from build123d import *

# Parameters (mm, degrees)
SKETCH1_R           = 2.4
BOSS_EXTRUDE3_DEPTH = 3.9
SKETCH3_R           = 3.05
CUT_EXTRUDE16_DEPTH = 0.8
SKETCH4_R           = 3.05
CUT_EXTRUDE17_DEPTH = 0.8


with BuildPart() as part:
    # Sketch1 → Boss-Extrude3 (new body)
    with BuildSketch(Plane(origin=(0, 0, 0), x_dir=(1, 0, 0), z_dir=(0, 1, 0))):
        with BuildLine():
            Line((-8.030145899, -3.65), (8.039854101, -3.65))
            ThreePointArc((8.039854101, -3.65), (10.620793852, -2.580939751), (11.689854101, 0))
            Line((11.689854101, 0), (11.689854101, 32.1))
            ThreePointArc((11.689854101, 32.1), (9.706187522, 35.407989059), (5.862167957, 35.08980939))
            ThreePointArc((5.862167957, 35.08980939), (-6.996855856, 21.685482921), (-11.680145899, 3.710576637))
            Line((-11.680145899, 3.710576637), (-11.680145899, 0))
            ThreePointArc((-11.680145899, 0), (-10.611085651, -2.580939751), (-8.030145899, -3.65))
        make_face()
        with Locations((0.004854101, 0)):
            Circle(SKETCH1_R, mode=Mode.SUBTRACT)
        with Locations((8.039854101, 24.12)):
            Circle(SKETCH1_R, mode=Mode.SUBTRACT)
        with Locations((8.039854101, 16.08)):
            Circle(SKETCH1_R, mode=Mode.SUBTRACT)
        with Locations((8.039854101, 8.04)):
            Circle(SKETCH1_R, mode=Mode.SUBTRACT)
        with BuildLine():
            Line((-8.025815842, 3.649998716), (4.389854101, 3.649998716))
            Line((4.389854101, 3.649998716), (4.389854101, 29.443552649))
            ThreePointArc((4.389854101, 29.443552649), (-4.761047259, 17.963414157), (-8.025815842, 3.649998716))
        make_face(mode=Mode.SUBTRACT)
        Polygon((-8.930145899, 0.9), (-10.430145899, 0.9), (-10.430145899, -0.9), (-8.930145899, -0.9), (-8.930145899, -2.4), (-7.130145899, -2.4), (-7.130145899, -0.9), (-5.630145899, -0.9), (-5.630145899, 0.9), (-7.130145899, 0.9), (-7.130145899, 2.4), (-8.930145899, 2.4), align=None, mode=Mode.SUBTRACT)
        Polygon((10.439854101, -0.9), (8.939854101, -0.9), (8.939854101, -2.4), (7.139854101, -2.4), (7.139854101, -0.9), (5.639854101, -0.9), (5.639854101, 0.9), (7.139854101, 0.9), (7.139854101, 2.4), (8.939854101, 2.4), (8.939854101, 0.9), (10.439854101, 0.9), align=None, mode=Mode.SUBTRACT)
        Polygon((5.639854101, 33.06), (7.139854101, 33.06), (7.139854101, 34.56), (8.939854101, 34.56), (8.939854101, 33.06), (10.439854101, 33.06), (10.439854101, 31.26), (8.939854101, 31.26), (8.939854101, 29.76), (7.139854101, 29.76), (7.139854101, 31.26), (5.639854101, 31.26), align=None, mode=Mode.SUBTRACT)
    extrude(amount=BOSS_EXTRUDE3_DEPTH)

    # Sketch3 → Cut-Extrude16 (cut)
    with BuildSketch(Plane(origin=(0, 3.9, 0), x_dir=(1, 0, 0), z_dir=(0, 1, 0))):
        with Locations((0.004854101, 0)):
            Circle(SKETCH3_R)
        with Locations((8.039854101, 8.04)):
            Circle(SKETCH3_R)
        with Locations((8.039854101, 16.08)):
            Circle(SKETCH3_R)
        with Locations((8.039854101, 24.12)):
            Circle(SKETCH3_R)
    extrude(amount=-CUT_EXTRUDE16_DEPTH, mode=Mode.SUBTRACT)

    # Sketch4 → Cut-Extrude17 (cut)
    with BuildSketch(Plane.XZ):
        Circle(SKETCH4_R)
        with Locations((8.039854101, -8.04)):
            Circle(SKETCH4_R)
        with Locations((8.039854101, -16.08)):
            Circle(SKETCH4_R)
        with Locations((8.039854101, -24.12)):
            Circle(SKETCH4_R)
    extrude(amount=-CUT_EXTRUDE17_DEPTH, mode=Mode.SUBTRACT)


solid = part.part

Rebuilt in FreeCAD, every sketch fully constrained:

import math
import FreeCAD as App
import Part
import Sketcher
Q = App.Units.Quantity

doc = App.newDocument("Part")
params = doc.addObject("Spreadsheet::Sheet", "Params")
for row, (alias, value) in enumerate([
    ("sketch1_diameter", "4.8 mm"),
    ("sketch1_radius", "3.65 mm"),
    ("sketch1_width", "1.5 mm"),
    ("sketch1_width2", "1.8 mm"),
    ("sketch1_height", "32.1 mm"),
    ("pad1_length", "3.9 mm"),
    ("sketch2_diameter", "6.1 mm"),
    ("pocket1_length", "0.8 mm"),
    ("sketch3_diameter", "6.1 mm"),
    ("pocket2_length", "0.8 mm"),
], start=1):
    params.set(f"A{row}", alias)
    params.set(f"B{row}", "=" + value)
    params.setAlias(f"B{row}", alias)

body = doc.addObject("PartDesign::Body", "Body")

# Sketch on XZ plane
sketch1 = body.newObject("Sketcher::SketchObject", "Sketch")
sketch1.AttachmentSupport = (doc.getObject("XZ_Plane"), [""])
sketch1.MapMode = "FlatFace"
sketch1.addGeometry(Part.LineSegment(App.Vector(-8, 3.6, 0), App.Vector(8, 3.6, 0)), False)
sketch1.addGeometry(Part.ArcOfCircle(Part.Circle(App.Vector(8, 0, 0), App.Vector(0, 0, 1), 3.7), math.radians(0), math.radians(90)), False)
sketch1.addGeometry(Part.LineSegment(App.Vector(11.7, 0, 0), App.Vector(11.7, -32.1, 0)), False)
sketch1.addGeometry(Part.ArcOfCircle(Part.Circle(App.Vector(8, -32.2, 0), App.Vector(0, 0, 1), 3.7), math.radians(-127), math.radians(1)), False)
sketch1.addGeometry(Part.ArcOfCircle(Part.Circle(App.Vector(25.2, -3.7, 0), App.Vector(0, 0, 1), 36.8), math.radians(180), math.radians(238)), False)
sketch1.addGeometry(Part.LineSegment(App.Vector(-11.7, -3.7, 0), App.Vector(-11.7, 0, 0)), False)
sketch1.addGeometry(Part.ArcOfCircle(Part.Circle(App.Vector(-8, 0, 0), App.Vector(0, 0, 1), 3.6), math.radians(90), math.radians(180)), False)
sketch1.addGeometry(Part.LineSegment(App.Vector(-10.4, -0.9, 0), App.Vector(-8.9, -0.9, 0)), False)
sketch1.addGeometry(Part.LineSegment(App.Vector(-8.9, -0.9, 0), App.Vector(-8.9, -2.4, 0)), False)
sketch1.addGeometry(Part.LineSegment(App.Vector(-8.9, -2.4, 0), App.Vector(-7.1, -2.4, 0)), False)
sketch1.addGeometry(Part.LineSegment(App.Vector(-7.1, -2.4, 0), App.Vector(-7.1, -0.9, 0)), False)
sketch1.addGeometry(Part.LineSegment(App.Vector(-7.1, -0.9, 0), App.Vector(-5.6, -0.9, 0)), False)
sketch1.addGeometry(Part.LineSegment(App.Vector(-5.6, -0.9, 0), App.Vector(-5.6, 0.9, 0)), False)
sketch1.addGeometry(Part.LineSegment(App.Vector(-5.6, 0.9, 0), App.Vector(-7.1, 0.9, 0)), False)
sketch1.addGeometry(Part.LineSegment(App.Vector(-7.1, 0.9, 0), App.Vector(-7.1, 2.4, 0)), False)
sketch1.addGeometry(Part.LineSegment(App.Vector(-7.1, 2.4, 0), App.Vector(-8.9, 2.4, 0)), False)
sketch1.addGeometry(Part.LineSegment(App.Vector(-8.9, 2.4, 0), App.Vector(-8.9, 0.9, 0)), False)
sketch1.addGeometry(Part.LineSegment(App.Vector(-8.9, 0.9, 0), App.Vector(-10.4, 0.9, 0)), False)
sketch1.addGeometry(Part.LineSegment(App.Vector(-10.4, 0.9, 0), App.Vector(-10.4, -0.9, 0)), False)
sketch1.addGeometry(Part.Circle(App.Vector(0, 0, 0), App.Vector(0, 0, 1), 2.4), False)
sketch1.addGeometry(Part.LineSegment(App.Vector(10.4, -0.9, 0), App.Vector(10.4, 0.9, 0)), False)
sketch1.addGeometry(Part.LineSegment(App.Vector(10.4, 0.9, 0), App.Vector(8.9, 0.9, 0)), False)
sketch1.addGeometry(Part.LineSegment(App.Vector(8.9, 0.9, 0), App.Vector(8.9, 2.4, 0)), False)
sketch1.addGeometry(Part.LineSegment(App.Vector(8.9, 2.4, 0), App.Vector(7.1, 2.4, 0)), False)
sketch1.addGeometry(Part.LineSegment(App.Vector(7.1, 2.4, 0), App.Vector(7.1, 0.9, 0)), False)
sketch1.addGeometry(Part.LineSegment(App.Vector(7.1, 0.9, 0), App.Vector(5.6, 0.9, 0)), False)
sketch1.addGeometry(Part.LineSegment(App.Vector(5.6, 0.9, 0), App.Vector(5.6, -0.9, 0)), False)
sketch1.addGeometry(Part.LineSegment(App.Vector(5.6, -0.9, 0), App.Vector(7.1, -0.9, 0)), False)
sketch1.addGeometry(Part.LineSegment(App.Vector(7.1, -0.9, 0), App.Vector(7.1, -2.4, 0)), False)
sketch1.addGeometry(Part.LineSegment(App.Vector(7.1, -2.4, 0), App.Vector(8.9, -2.4, 0)), False)
sketch1.addGeometry(Part.LineSegment(App.Vector(8.9, -2.4, 0), App.Vector(8.9, -0.9, 0)), False)
sketch1.addGeometry(Part.LineSegment(App.Vector(8.9, -0.9, 0), App.Vector(10.4, -0.9, 0)), False)
sketch1.addGeometry(Part.Circle(App.Vector(8, -8, 0), App.Vector(0, 0, 1), 2.4), False)
sketch1.addGeometry(Part.Circle(App.Vector(8, -16.1, 0), App.Vector(0, 0, 1), 2.4), False)
sketch1.addGeometry(Part.LineSegment(App.Vector(4.4, -3.6, 0), App.Vector(-8, -3.6, 0)), False)
sketch1.addGeometry(Part.ArcOfCircle(Part.Circle(App.Vector(25, -3.7, 0), App.Vector(0, 0, 1), 33), math.radians(180), math.radians(231)), False)
sketch1.addGeometry(Part.LineSegment(App.Vector(4.4, -29.4, 0), App.Vector(4.4, -3.6, 0)), False)
sketch1.addGeometry(Part.Circle(App.Vector(8, -24.1, 0), App.Vector(0, 0, 1), 2.4), False)
sketch1.addGeometry(Part.LineSegment(App.Vector(5.6, -31.3, 0), App.Vector(5.6, -33.1, 0)), False)
sketch1.addGeometry(Part.LineSegment(App.Vector(5.6, -33.1, 0), App.Vector(7.1, -33.1, 0)), False)
sketch1.addGeometry(Part.LineSegment(App.Vector(7.1, -33.1, 0), App.Vector(7.1, -34.6, 0)), False)
sketch1.addGeometry(Part.LineSegment(App.Vector(7.1, -34.6, 0), App.Vector(8.9, -34.6, 0)), False)
sketch1.addGeometry(Part.LineSegment(App.Vector(8.9, -34.6, 0), App.Vector(8.9, -33.1, 0)), False)
sketch1.addGeometry(Part.LineSegment(App.Vector(8.9, -33.1, 0), App.Vector(10.4, -33.1, 0)), False)
sketch1.addGeometry(Part.LineSegment(App.Vector(10.4, -33.1, 0), App.Vector(10.4, -31.3, 0)), False)
sketch1.addGeometry(Part.LineSegment(App.Vector(10.4, -31.3, 0), App.Vector(8.9, -31.3, 0)), False)
sketch1.addGeometry(Part.LineSegment(App.Vector(8.9, -31.3, 0), App.Vector(8.9, -29.8, 0)), False)
sketch1.addGeometry(Part.LineSegment(App.Vector(8.9, -29.8, 0), App.Vector(7.1, -29.8, 0)), False)
sketch1.addGeometry(Part.LineSegment(App.Vector(7.1, -29.8, 0), App.Vector(7.1, -31.3, 0)), False)
sketch1.addGeometry(Part.LineSegment(App.Vector(7.1, -31.3, 0), App.Vector(5.6, -31.3, 0)), False)
sketch1.addConstraint(Sketcher.Constraint("Tangent", 0, 2, 1, 2))
sketch1.addConstraint(Sketcher.Constraint("Tangent", 1, 1, 2, 1))
sketch1.addConstraint(Sketcher.Constraint("Coincident", 2, 2, 3, 2))
sketch1.addConstraint(Sketcher.Constraint("Coincident", 3, 1, 4, 2))
sketch1.addConstraint(Sketcher.Constraint("Tangent", 4, 1, 5, 1))
sketch1.addConstraint(Sketcher.Constraint("Tangent", 5, 2, 6, 2))
sketch1.addConstraint(Sketcher.Constraint("Tangent", 6, 1, 0, 1))
sketch1.addConstraint(Sketcher.Constraint("Coincident", 7, 2, 8, 1))
sketch1.addConstraint(Sketcher.Constraint("Coincident", 8, 2, 9, 1))
sketch1.addConstraint(Sketcher.Constraint("Coincident", 9, 2, 10, 1))
sketch1.addConstraint(Sketcher.Constraint("Coincident", 10, 2, 11, 1))
sketch1.addConstraint(Sketcher.Constraint("Coincident", 11, 2, 12, 1))
sketch1.addConstraint(Sketcher.Constraint("Coincident", 12, 2, 13, 1))
sketch1.addConstraint(Sketcher.Constraint("Coincident", 13, 2, 14, 1))
sketch1.addConstraint(Sketcher.Constraint("Coincident", 14, 2, 15, 1))
sketch1.addConstraint(Sketcher.Constraint("Coincident", 15, 2, 16, 1))
sketch1.addConstraint(Sketcher.Constraint("Coincident", 16, 2, 17, 1))
sketch1.addConstraint(Sketcher.Constraint("Coincident", 17, 2, 18, 1))
sketch1.addConstraint(Sketcher.Constraint("Coincident", 18, 2, 7, 1))
sketch1.addConstraint(Sketcher.Constraint("Coincident", 20, 2, 21, 1))
sketch1.addConstraint(Sketcher.Constraint("Coincident", 21, 2, 22, 1))
sketch1.addConstraint(Sketcher.Constraint("Coincident", 22, 2, 23, 1))
sketch1.addConstraint(Sketcher.Constraint("Coincident", 23, 2, 24, 1))
sketch1.addConstraint(Sketcher.Constraint("Coincident", 24, 2, 25, 1))
sketch1.addConstraint(Sketcher.Constraint("Coincident", 25, 2, 26, 1))
sketch1.addConstraint(Sketcher.Constraint("Coincident", 26, 2, 27, 1))
sketch1.addConstraint(Sketcher.Constraint("Coincident", 27, 2, 28, 1))
sketch1.addConstraint(Sketcher.Constraint("Coincident", 28, 2, 29, 1))
sketch1.addConstraint(Sketcher.Constraint("Coincident", 29, 2, 30, 1))
sketch1.addConstraint(Sketcher.Constraint("Coincident", 30, 2, 31, 1))
sketch1.addConstraint(Sketcher.Constraint("Coincident", 31, 2, 20, 1))
sketch1.addConstraint(Sketcher.Constraint("Coincident", 34, 2, 35, 1))
sketch1.addConstraint(Sketcher.Constraint("Coincident", 35, 2, 36, 1))
sketch1.addConstraint(Sketcher.Constraint("Coincident", 36, 2, 34, 1))
sketch1.addConstraint(Sketcher.Constraint("Coincident", 38, 2, 39, 1))
sketch1.addConstraint(Sketcher.Constraint("Coincident", 39, 2, 40, 1))
sketch1.addConstraint(Sketcher.Constraint("Coincident", 40, 2, 41, 1))
sketch1.addConstraint(Sketcher.Constraint("Coincident", 41, 2, 42, 1))
sketch1.addConstraint(Sketcher.Constraint("Coincident", 42, 2, 43, 1))
sketch1.addConstraint(Sketcher.Constraint("Coincident", 43, 2, 44, 1))
sketch1.addConstraint(Sketcher.Constraint("Coincident", 44, 2, 45, 1))
sketch1.addConstraint(Sketcher.Constraint("Coincident", 45, 2, 46, 1))
sketch1.addConstraint(Sketcher.Constraint("Coincident", 46, 2, 47, 1))
sketch1.addConstraint(Sketcher.Constraint("Coincident", 47, 2, 48, 1))
sketch1.addConstraint(Sketcher.Constraint("Coincident", 48, 2, 49, 1))
sketch1.addConstraint(Sketcher.Constraint("Coincident", 49, 2, 38, 1))
sketch1.addConstraint(Sketcher.Constraint("Horizontal", 0))
sketch1.addConstraint(Sketcher.Constraint("Vertical", 2))
sketch1.addConstraint(Sketcher.Constraint("Vertical", 5))
sketch1.addConstraint(Sketcher.Constraint("Horizontal", 7))
sketch1.addConstraint(Sketcher.Constraint("Vertical", 8))
sketch1.addConstraint(Sketcher.Constraint("Horizontal", 9))
sketch1.addConstraint(Sketcher.Constraint("Vertical", 10))
sketch1.addConstraint(Sketcher.Constraint("Horizontal", 11))
sketch1.addConstraint(Sketcher.Constraint("Vertical", 12))
sketch1.addConstraint(Sketcher.Constraint("Horizontal", 13))
sketch1.addConstraint(Sketcher.Constraint("Vertical", 14))
sketch1.addConstraint(Sketcher.Constraint("Horizontal", 15))
sketch1.addConstraint(Sketcher.Constraint("Vertical", 16))
sketch1.addConstraint(Sketcher.Constraint("Horizontal", 17))
sketch1.addConstraint(Sketcher.Constraint("Vertical", 18))
sketch1.addConstraint(Sketcher.Constraint("Vertical", 20))
sketch1.addConstraint(Sketcher.Constraint("Horizontal", 21))
sketch1.addConstraint(Sketcher.Constraint("Vertical", 22))
sketch1.addConstraint(Sketcher.Constraint("Horizontal", 23))
sketch1.addConstraint(Sketcher.Constraint("Vertical", 24))
sketch1.addConstraint(Sketcher.Constraint("Horizontal", 25))
sketch1.addConstraint(Sketcher.Constraint("Vertical", 26))
sketch1.addConstraint(Sketcher.Constraint("Horizontal", 27))
sketch1.addConstraint(Sketcher.Constraint("Vertical", 28))
sketch1.addConstraint(Sketcher.Constraint("Horizontal", 29))
sketch1.addConstraint(Sketcher.Constraint("Vertical", 30))
sketch1.addConstraint(Sketcher.Constraint("Horizontal", 31))
sketch1.addConstraint(Sketcher.Constraint("Horizontal", 34))
sketch1.addConstraint(Sketcher.Constraint("Vertical", 36))
sketch1.addConstraint(Sketcher.Constraint("Vertical", 38))
sketch1.addConstraint(Sketcher.Constraint("Horizontal", 39))
sketch1.addConstraint(Sketcher.Constraint("Vertical", 40))
sketch1.addConstraint(Sketcher.Constraint("Horizontal", 41))
sketch1.addConstraint(Sketcher.Constraint("Vertical", 42))
sketch1.addConstraint(Sketcher.Constraint("Horizontal", 43))
sketch1.addConstraint(Sketcher.Constraint("Vertical", 44))
sketch1.addConstraint(Sketcher.Constraint("Horizontal", 45))
sketch1.addConstraint(Sketcher.Constraint("Vertical", 46))
sketch1.addConstraint(Sketcher.Constraint("Horizontal", 47))
sketch1.addConstraint(Sketcher.Constraint("Vertical", 48))
sketch1.addConstraint(Sketcher.Constraint("Horizontal", 49))
sketch1.addConstraint(Sketcher.Constraint("Equal", 1, 6))
sketch1.addConstraint(Sketcher.Constraint("Equal", 19, 32))
sketch1.addConstraint(Sketcher.Constraint("Equal", 32, 33))
sketch1.addConstraint(Sketcher.Constraint("Equal", 33, 37))
sketch1.addConstraint(Sketcher.Constraint("Symmetric", 10, 2, 13, 2, -1))
sketch1.addConstraint(Sketcher.Constraint("Symmetric", 8, 2, 15, 2, -1))
sketch1.addConstraint(Sketcher.Constraint("Symmetric", 24, 2, 27, 2, -1))
sketch1.addConstraint(Sketcher.Constraint("Symmetric", 22, 2, 29, 2, -1))
sketch1.addConstraint(Sketcher.Constraint("PointOnObject", 1, 3, -1))
sketch1.addConstraint(Sketcher.Constraint("PointOnObject", 19, 3, -1))
sketch1.addConstraint(Sketcher.Constraint("Horizontal", 7, 2, 10, 2))
sketch1.addConstraint(Sketcher.Constraint("Horizontal", 13, 2, 16, 2))
sketch1.addConstraint(Sketcher.Constraint("Horizontal", 17, 2, 20, 2))
sketch1.addConstraint(Sketcher.Constraint("Horizontal", 15, 2, 22, 2))
sketch1.addConstraint(Sketcher.Constraint("Horizontal", 21, 2, 24, 2))
sketch1.addConstraint(Sketcher.Constraint("Horizontal", 27, 2, 30, 2))
sketch1.addConstraint(Sketcher.Constraint("Horizontal", 39, 2, 42, 2))
sketch1.addConstraint(Sketcher.Constraint("Horizontal", 45, 2, 48, 2))
sketch1.addConstraint(Sketcher.Constraint("Vertical", 1, 3, 3, 3))
sketch1.addConstraint(Sketcher.Constraint("Vertical", 3, 3, 32, 3))
sketch1.addConstraint(Sketcher.Constraint("Vertical", 32, 3, 33, 3))
sketch1.addConstraint(Sketcher.Constraint("Vertical", 33, 3, 37, 3))
sketch1.addConstraint(Sketcher.Constraint("Vertical", 26, 2, 38, 2))
sketch1.addConstraint(Sketcher.Constraint("Vertical", 28, 2, 39, 2))
sketch1.addConstraint(Sketcher.Constraint("Vertical", 30, 2, 41, 2))
sketch1.addConstraint(Sketcher.Constraint("Vertical", 31, 2, 43, 2))
sketch1.addConstraint(Sketcher.Constraint("Vertical", 42, 2, 45, 2))
sketch1.addConstraint(Sketcher.Constraint("Vertical", 40, 2, 47, 2))
sketch1.addConstraint(Sketcher.Constraint("Equal", 7, 11))
sketch1.addConstraint(Sketcher.Constraint("Equal", 17, 21))
sketch1.addConstraint(Sketcher.Constraint("Equal", 15, 23))
sketch1.addConstraint(Sketcher.Constraint("Equal", 21, 25))
sketch1.addConstraint(Sketcher.Constraint("Equal", 49, 8))
sketch1.addConstraint(Sketcher.Constraint("Equal", 47, 12))
sketch1.addConstraint(Sketcher.Constraint("Equal", 26, 38))
sketch1.addConstraint(Sketcher.Constraint("Equal", 30, 40))
sketch1.addConstraint(Sketcher.Constraint("Equal", 42, 46))
sketch1.addConstraint(Sketcher.Constraint("Diameter", 19, Q("4.8 mm")))
sketch1.addConstraint(Sketcher.Constraint("Radius", 1, Q("3.65 mm")))
sketch1.addConstraint(Sketcher.Constraint("DistanceX", 7, 1, 7, 2, Q("1.5 mm")))
sketch1.addConstraint(Sketcher.Constraint("DistanceX", 9, 1, 9, 2, Q("1.8 mm")))
sketch1.addConstraint(Sketcher.Constraint("DistanceY", 2, 2, 2, 1, Q("32.1 mm")))
sketch1.addConstraint(Sketcher.Constraint("DistanceX", 0, 1, 0, 2, Q("16.07 mm")))
sketch1.addConstraint(Sketcher.Constraint("DistanceX", 7, 2, 6, 3, Q("0.9 mm")))
sketch1.addConstraint(Sketcher.Constraint("DistanceX", 1, 3, 20, 2, Q("2.4 mm")))
sketch1.addConstraint(Sketcher.Constraint("DistanceX", 35, 2, 2, 2, Q("7.3 mm")))
sketch1.addConstraint(Sketcher.Constraint("DistanceY", 38, 2, 3, 3, Q("0.9 mm")))
sketch1.addConstraint(Sketcher.Constraint("DistanceY", 3, 3, -1, 1, Q("32.16 mm")))
sketch1.addConstraint(Sketcher.Constraint("DistanceY", 32, 3, -1, 1, Q("8.04 mm")))
sketch1.addConstraint(Sketcher.Constraint("DistanceY", 33, 3, -1, 1, Q("16.08 mm")))
sketch1.addConstraint(Sketcher.Constraint("DistanceY", 37, 3, -1, 1, Q("24.12 mm")))
sketch1.addConstraint(Sketcher.Constraint("DistanceY", 34, 2, -1, 1, Q("3.649999 mm")))
sketch1.addConstraint(Sketcher.Constraint("Radius", 35, Q("32.99371 mm")))
sketch1.addConstraint(Sketcher.Constraint("Radius", 4, Q("36.836333 mm")))
sketch1.addConstraint(Sketcher.Constraint("DistanceX", 19, 3, 1, 3, Q("8.035 mm")))
sketch1.addConstraint(Sketcher.Constraint("DistanceX", 34, 2, 34, 1, Q("12.41567 mm")))
sketch1.addConstraint(Sketcher.Constraint("DistanceY", 5, 1, 5, 2, Q("3.710577 mm")))
sketch1.addConstraint(Sketcher.Constraint("DistanceY", 36, 1, 36, 2, Q("25.793554 mm")))
sketch1.addConstraint(Sketcher.Constraint("DistanceX", -1, 1, 1, 3, Q("8.039854 mm")))
sketch1.setExpression("Constraints[124]", "Params.sketch1_diameter")
sketch1.setExpression("Constraints[125]", "Params.sketch1_radius")
sketch1.setExpression("Constraints[126]", "Params.sketch1_width")
sketch1.setExpression("Constraints[127]", "Params.sketch1_width2")
sketch1.setExpression("Constraints[128]", "Params.sketch1_height")
pad1 = body.newObject("PartDesign::Pad", "Pad")
pad1.Profile = sketch1
pad1.setExpression("Length", "Params.pad1_length")
pad1.Reversed = True

# Sketch on XZ plane
sketch2 = body.newObject("Sketcher::SketchObject", "Sketch001")
sketch2.AttachmentSupport = (doc.getObject("XZ_Plane"), [""])
sketch2.MapMode = "FlatFace"
sketch2.AttachmentOffset = App.Placement(App.Vector(0, 0, -3.9), App.Rotation())
sketch2.addGeometry(Part.Circle(App.Vector(0, 0, 0), App.Vector(0, 0, 1), 3), False)
sketch2.addGeometry(Part.Circle(App.Vector(8, -8, 0), App.Vector(0, 0, 1), 3), False)
sketch2.addGeometry(Part.Circle(App.Vector(8, -16.1, 0), App.Vector(0, 0, 1), 3), False)
sketch2.addGeometry(Part.Circle(App.Vector(8, -24.1, 0), App.Vector(0, 0, 1), 3), False)
sketch2.addConstraint(Sketcher.Constraint("Equal", 0, 1))
sketch2.addConstraint(Sketcher.Constraint("Equal", 1, 2))
sketch2.addConstraint(Sketcher.Constraint("Equal", 2, 3))
sketch2.addConstraint(Sketcher.Constraint("PointOnObject", 0, 3, -1))
sketch2.addConstraint(Sketcher.Constraint("Vertical", 1, 3, 2, 3))
sketch2.addConstraint(Sketcher.Constraint("Vertical", 2, 3, 3, 3))
sketch2.addConstraint(Sketcher.Constraint("Diameter", 0, Q("6.1 mm")))
sketch2.addConstraint(Sketcher.Constraint("DistanceY", 1, 3, -1, 1, Q("8.04 mm")))
sketch2.addConstraint(Sketcher.Constraint("DistanceY", 2, 3, -1, 1, Q("16.08 mm")))
sketch2.addConstraint(Sketcher.Constraint("DistanceY", 3, 3, -1, 1, Q("24.12 mm")))
sketch2.addConstraint(Sketcher.Constraint("DistanceX", 0, 3, 1, 3, Q("8.035 mm")))
sketch2.addConstraint(Sketcher.Constraint("DistanceX", -1, 1, 0, 3, Q("0.004854 mm")))
sketch2.setExpression("Constraints[6]", "Params.sketch2_diameter")
pocket1 = body.newObject("PartDesign::Pocket", "Pocket")
pocket1.Profile = sketch2
pocket1.setExpression("Length", "Params.pocket1_length")
pocket1.Reversed = True

# Sketch on XZ plane
sketch3 = body.newObject("Sketcher::SketchObject", "Sketch002")
sketch3.AttachmentSupport = (doc.getObject("XZ_Plane"), [""])
sketch3.MapMode = "FlatFace"
sketch3.addGeometry(Part.Circle(App.Vector(0, 0, 0), App.Vector(0, 0, 1), 3), False)
sketch3.addGeometry(Part.Circle(App.Vector(8, -8, 0), App.Vector(0, 0, 1), 3), False)
sketch3.addGeometry(Part.Circle(App.Vector(8, -16.1, 0), App.Vector(0, 0, 1), 3), False)
sketch3.addGeometry(Part.Circle(App.Vector(8, -24.1, 0), App.Vector(0, 0, 1), 3), False)
sketch3.addConstraint(Sketcher.Constraint("Coincident", 0, 3, -1, 1))
sketch3.addConstraint(Sketcher.Constraint("Equal", 0, 1))
sketch3.addConstraint(Sketcher.Constraint("Equal", 1, 2))
sketch3.addConstraint(Sketcher.Constraint("Equal", 2, 3))
sketch3.addConstraint(Sketcher.Constraint("Vertical", 1, 3, 2, 3))
sketch3.addConstraint(Sketcher.Constraint("Vertical", 2, 3, 3, 3))
sketch3.addConstraint(Sketcher.Constraint("Diameter", 0, Q("6.1 mm")))
sketch3.addConstraint(Sketcher.Constraint("DistanceY", 1, 3, -1, 1, Q("8.04 mm")))
sketch3.addConstraint(Sketcher.Constraint("DistanceY", 2, 3, -1, 1, Q("16.08 mm")))
sketch3.addConstraint(Sketcher.Constraint("DistanceY", 3, 3, -1, 1, Q("24.12 mm")))
sketch3.addConstraint(Sketcher.Constraint("DistanceX", -1, 1, 1, 3, Q("8.039854 mm")))
sketch3.setExpression("Constraints[6]", "Params.sketch3_diameter")
pocket2 = body.newObject("PartDesign::Pocket", "Pocket001")
pocket2.Profile = sketch3
pocket2.setExpression("Length", "Params.pocket2_length")

doc.recompute()
